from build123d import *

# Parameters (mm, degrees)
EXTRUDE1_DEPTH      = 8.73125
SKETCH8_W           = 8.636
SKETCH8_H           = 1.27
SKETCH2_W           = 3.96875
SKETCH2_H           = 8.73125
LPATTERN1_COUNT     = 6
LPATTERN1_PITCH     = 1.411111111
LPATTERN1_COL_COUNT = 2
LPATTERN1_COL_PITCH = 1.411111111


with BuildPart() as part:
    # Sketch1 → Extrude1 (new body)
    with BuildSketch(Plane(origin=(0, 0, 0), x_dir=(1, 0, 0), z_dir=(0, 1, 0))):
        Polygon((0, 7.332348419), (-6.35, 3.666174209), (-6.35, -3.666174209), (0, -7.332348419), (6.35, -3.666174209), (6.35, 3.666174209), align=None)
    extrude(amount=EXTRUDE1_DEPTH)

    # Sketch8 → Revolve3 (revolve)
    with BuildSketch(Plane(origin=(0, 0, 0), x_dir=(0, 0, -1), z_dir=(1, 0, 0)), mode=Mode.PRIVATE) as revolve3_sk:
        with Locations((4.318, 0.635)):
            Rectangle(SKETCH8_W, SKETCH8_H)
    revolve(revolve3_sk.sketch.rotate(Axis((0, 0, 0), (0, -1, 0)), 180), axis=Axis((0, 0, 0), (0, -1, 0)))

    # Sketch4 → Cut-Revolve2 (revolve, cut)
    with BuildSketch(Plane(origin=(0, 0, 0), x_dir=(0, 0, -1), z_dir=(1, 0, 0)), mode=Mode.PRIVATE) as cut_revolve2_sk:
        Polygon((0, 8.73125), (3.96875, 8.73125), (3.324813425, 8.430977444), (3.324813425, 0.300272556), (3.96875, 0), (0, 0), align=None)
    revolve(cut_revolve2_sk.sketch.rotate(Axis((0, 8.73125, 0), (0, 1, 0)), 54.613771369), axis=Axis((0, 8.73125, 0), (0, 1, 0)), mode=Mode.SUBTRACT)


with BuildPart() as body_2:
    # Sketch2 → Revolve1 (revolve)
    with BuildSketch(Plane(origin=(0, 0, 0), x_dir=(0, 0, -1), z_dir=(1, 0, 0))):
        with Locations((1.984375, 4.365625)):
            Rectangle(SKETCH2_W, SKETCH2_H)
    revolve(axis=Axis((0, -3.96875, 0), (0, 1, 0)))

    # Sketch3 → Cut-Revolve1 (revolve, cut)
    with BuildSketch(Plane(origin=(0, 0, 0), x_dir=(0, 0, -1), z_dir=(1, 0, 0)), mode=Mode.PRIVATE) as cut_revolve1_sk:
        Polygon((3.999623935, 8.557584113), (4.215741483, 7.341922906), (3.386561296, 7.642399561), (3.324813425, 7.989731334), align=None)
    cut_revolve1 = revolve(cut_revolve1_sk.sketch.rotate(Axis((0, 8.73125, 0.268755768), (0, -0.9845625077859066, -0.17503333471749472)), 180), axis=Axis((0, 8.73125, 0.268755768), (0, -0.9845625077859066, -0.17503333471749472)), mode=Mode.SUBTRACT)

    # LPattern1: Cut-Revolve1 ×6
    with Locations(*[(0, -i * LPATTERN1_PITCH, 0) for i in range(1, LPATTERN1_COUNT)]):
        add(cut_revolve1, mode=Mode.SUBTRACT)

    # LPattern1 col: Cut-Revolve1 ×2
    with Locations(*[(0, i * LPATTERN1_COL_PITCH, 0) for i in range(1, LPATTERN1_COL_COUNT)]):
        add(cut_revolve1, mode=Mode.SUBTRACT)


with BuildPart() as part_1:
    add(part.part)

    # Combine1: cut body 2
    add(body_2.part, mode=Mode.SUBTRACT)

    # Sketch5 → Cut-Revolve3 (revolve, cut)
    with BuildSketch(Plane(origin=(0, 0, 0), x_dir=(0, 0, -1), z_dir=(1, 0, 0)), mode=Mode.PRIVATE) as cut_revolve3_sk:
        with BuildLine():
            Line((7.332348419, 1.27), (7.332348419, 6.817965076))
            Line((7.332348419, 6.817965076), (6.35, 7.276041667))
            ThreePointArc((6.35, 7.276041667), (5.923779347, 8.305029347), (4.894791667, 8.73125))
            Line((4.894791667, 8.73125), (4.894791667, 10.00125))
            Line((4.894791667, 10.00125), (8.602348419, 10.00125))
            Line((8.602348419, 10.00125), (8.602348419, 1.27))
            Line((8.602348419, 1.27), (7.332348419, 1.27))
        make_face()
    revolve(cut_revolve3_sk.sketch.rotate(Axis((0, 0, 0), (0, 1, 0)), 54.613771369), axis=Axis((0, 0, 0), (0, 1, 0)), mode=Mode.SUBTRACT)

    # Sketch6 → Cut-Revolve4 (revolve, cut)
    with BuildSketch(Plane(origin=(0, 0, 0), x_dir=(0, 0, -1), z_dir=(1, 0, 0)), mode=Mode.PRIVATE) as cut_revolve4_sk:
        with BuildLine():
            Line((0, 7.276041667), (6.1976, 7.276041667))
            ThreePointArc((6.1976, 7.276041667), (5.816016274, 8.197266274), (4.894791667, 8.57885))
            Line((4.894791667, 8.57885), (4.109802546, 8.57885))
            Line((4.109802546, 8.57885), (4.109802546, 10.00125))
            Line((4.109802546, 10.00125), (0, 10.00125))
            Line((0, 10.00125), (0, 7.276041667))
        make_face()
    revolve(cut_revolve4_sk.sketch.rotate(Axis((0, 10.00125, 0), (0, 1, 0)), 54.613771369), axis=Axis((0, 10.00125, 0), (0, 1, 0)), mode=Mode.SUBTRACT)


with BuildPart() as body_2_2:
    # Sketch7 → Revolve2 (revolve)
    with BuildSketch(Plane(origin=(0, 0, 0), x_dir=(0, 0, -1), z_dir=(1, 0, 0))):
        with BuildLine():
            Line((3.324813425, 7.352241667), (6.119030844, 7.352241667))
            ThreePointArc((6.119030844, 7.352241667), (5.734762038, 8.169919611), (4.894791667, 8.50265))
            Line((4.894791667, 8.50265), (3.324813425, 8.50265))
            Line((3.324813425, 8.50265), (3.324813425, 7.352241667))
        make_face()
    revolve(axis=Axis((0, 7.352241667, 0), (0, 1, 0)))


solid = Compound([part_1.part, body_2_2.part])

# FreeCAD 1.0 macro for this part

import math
import FreeCAD as App
import Part
import Sketcher
from FreeCAD import Vector
Q = App.Units.Quantity


def add_polygon(sketch, points):
    """Adds a closed chain of lines whose ends are joined by coincident constraints."""
    first, n = sketch.GeometryCount, len(points)
    for a, b in zip(points, points[1:] + points[:1]):
        sketch.addGeometry(Part.LineSegment(App.Vector(*a, 0), App.Vector(*b, 0)), False)
    for i in range(n):
        sketch.addConstraint(Sketcher.Constraint("Coincident", first + i, 2, first + (i + 1) % n, 1))

doc = App.newDocument("Part")
params = doc.addObject("Spreadsheet::Sheet", "Params")
for row, (alias, value) in enumerate([
    ("pad1_length", "0.34375 in"),
    ("sketch2_width", "0.05 in"),
    ("sketch2_height", "0.34 in"),
    ("revolution_angle", "360 deg"),
    ("sketch3_width", "0.34375 in"),
    ("sketch3_height", "0.15625 in"),
    ("groove_angle", "360 deg"),
    ("sketch4_width", "0.34375 in"),
    ("sketch4_height", "0.15625 in"),
    ("revolution2_angle", "360 deg"),
    ("groove2_angle", "360 deg"),
    ("linearpattern_pitch", "1.411111 mm"),
    ("linearpattern2_pitch", "1.411111 mm"),
    ("sketch6_width", "0.05 in"),
    ("sketch6_width2", "0.34375 in"),
    ("groove3_angle", "360 deg"),
    ("sketch7_width", "0.056 in"),
    ("sketch7_height", "0.244 in"),
    ("groove4_angle", "360 deg"),
    ("revolution3_angle", "360 deg"),
], start=1):
    params.set(f"A{row}", alias)
    params.set(f"B{row}", "=" + value)
    params.setAlias(f"B{row}", alias)

body = doc.addObject("PartDesign::Body", "Body")

sketch1 = body.newObject("Sketcher::SketchObject", "Sketch")
sketch1.AttachmentSupport = (doc.getObject("XZ_Plane"), [""])
sketch1.MapMode = "FlatFace"
add_polygon(sketch1, [(0, -7), (-6, -4), (-6, 4), (0, 7), (6, 4), (6, -4)])
sketch1.addConstraint(Sketcher.Constraint("Vertical", 1))
sketch1.addConstraint(Sketcher.Constraint("Vertical", 4))
sketch1.addConstraint(Sketcher.Constraint("Symmetric", 0, 2, 3, 2, -1, 1))
sketch1.addConstraint(Sketcher.Constraint("Symmetric", 2, 2, 5, 2, -1, 1))
sketch1.addConstraint(Sketcher.Constraint("PointOnObject", 2, 2, -2))
sketch1.addConstraint(Sketcher.Constraint("Parallel", 2, 5))
sketch1.addConstraint(Sketcher.Constraint("Horizontal", 1, 2, 3, 2))
sketch1.addConstraint(Sketcher.Constraint("Angle", 0, Q("150 deg")))
sketch1.addConstraint(Sketcher.Constraint("DistanceX", 1, 2, 3, 2, Q("0.5 in")))
sketch1.addConstraint(Sketcher.Constraint("DistanceY", 1, 1, 1, 2, Q("7.332348 mm")))
pad1 = body.newObject("PartDesign::Pad", "Pad")
pad1.Profile = sketch1
pad1.setExpression("Length", "Params.pad1_length")
pad1.Reversed = True

sketch2 = body.newObject("Sketcher::SketchObject", "Sketch001")
sketch2.AttachmentSupport = (doc.getObject("YZ_Plane"), [""])
sketch2.MapMode = "FlatFace"
add_polygon(sketch2, [(1.3, 0), (0, 0), (0, -8.6), (1.3, -8.6)])
sketch2.addConstraint(Sketcher.Constraint("Horizontal", 0))
sketch2.addConstraint(Sketcher.Constraint("Vertical", 1))
sketch2.addConstraint(Sketcher.Constraint("Horizontal", 2))
sketch2.addConstraint(Sketcher.Constraint("Vertical", 3))
sketch2.addConstraint(Sketcher.Constraint("Coincident", 0, 2, -1, 1))
sketch2.addConstraint(Sketcher.Constraint("DistanceX", 0, 2, 0, 1, Q("0.05 in")))
sketch2.addConstraint(Sketcher.Constraint("DistanceY", 1, 2, 1, 1, Q("0.34 in")))
sketch2.setExpression("Constraints[9]", "Params.sketch2_width")
sketch2.setExpression("Constraints[10]", "Params.sketch2_height")
revolution = body.newObject("PartDesign::Revolution", "Revolution")
revolution.Profile = sketch2
revolution.ReferenceAxis = (sketch2, ["H_Axis"])
revolution.setExpression("Angle", "Params.revolution_angle")

sketch3 = body.newObject("Sketcher::SketchObject", "Sketch002")
sketch3.AttachmentSupport = (doc.getObject("YZ_Plane"), [""])
sketch3.MapMode = "FlatFace"
add_polygon(sketch3, [(8.7, -4), (8.7, 0), (0, 0), (0, -4), (0.3, -3.3), (8.4, -3.3)])
sketch3.addConstraint(Sketcher.Constraint("Vertical", 0))
sketch3.addConstraint(Sketcher.Constraint("Horizontal", 1))
sketch3.addConstraint(Sketcher.Constraint("Vertical", 2))
sketch3.addConstraint(Sketcher.Constraint("Horizontal", 4))
sketch3.addConstraint(Sketcher.Constraint("Coincident", 1, 2, -1, 1))
sketch3.addConstraint(Sketcher.Constraint("Horizontal", 2, 2, 5, 2))
sketch3.addConstraint(Sketcher.Constraint("Equal", 3, 5))
sketch3.addConstraint(Sketcher.Constraint("Angle", 3, Q("65 deg")))
sketch3.addConstraint(Sketcher.Constraint("DistanceX", 1, 2, 1, 1, Q("0.34375 in")))
sketch3.addConstraint(Sketcher.Constraint("DistanceY", 0, 1, 0, 2, Q("0.15625 in")))
sketch3.addConstraint(Sketcher.Constraint("DistanceX", 4, 1, 4, 2, Q("8.130705 mm")))
sketch3.setExpression("Constraints[14]", "Params.sketch3_width")
sketch3.setExpression("Constraints[15]", "Params.sketch3_height")
groove = body.newObject("PartDesign::Groove", "Groove")
groove.Profile = sketch3
groove.ReferenceAxis = (sketch3, ["H_Axis"])
groove.setExpression("Angle", "Params.groove_angle")
body2 = doc.addObject("PartDesign::Body", "Body001")

sketch4 = body2.newObject("Sketcher::SketchObject", "Sketch003")
sketch4.AttachmentSupport = (doc.getObject("YZ_Plane001"), [""])
sketch4.MapMode = "FlatFace"
add_polygon(sketch4, [(8.7, 0), (0, 0), (0, -4), (8.7, -4)])
sketch4.addConstraint(Sketcher.Constraint("Horizontal", 0))
sketch4.addConstraint(Sketcher.Constraint("Vertical", 1))
sketch4.addConstraint(Sketcher.Constraint("Horizontal", 2))
sketch4.addConstraint(Sketcher.Constraint("Vertical", 3))
sketch4.addConstraint(Sketcher.Constraint("Coincident", 0, 2, -1, 1))
sketch4.addConstraint(Sketcher.Constraint("DistanceX", 0, 2, 0, 1, Q("0.34375 in")))
sketch4.addConstraint(Sketcher.Constraint("DistanceY", 1, 2, 1, 1, Q("0.15625 in")))
sketch4.setExpression("Constraints[9]", "Params.sketch4_width")
sketch4.setExpression("Constraints[10]", "Params.sketch4_height")
revolution2 = body2.newObject("PartDesign::Revolution", "Revolution001")
revolution2.Profile = sketch4
revolution2.ReferenceAxis = (sketch4, ["H_Axis"])
revolution2.setExpression("Angle", "Params.revolution2_angle")

sketch5 = body2.newObject("Sketcher::SketchObject", "Sketch004")
sketch5.AttachmentSupport = (doc.getObject("YZ_Plane001"), [""])
sketch5.MapMode = "FlatFace"
add_polygon(sketch5, [(7.34, -4.22), (8.56, -4), (7.99, -3.32), (7.64, -3.39)])
sketch5.addGeometry(Part.LineSegment(Vector(7.83, 0.11, 0), Vector(6.61, -0.11, 0)), True)
sketch5.addConstraint(Sketcher.Constraint("Parallel", 0, 2))
sketch5.addConstraint(Sketcher.Constraint("Parallel", 2, 4))
sketch5.addConstraint(Sketcher.Constraint("Equal", 1, 3))
sketch5.addConstraint(Sketcher.Constraint("Equal", 0, 4))
sketch5.addConstraint(Sketcher.Constraint("DistanceX", -1, 1, 2, 2, Q("7.6424 mm")))
sketch5.addConstraint(Sketcher.Constraint("DistanceX", 4, 1, 1, 2, Q("0.162402 mm")))
sketch5.addConstraint(Sketcher.Constraint("DistanceY", 3, 2, 4, 1, Q("4.3238 mm")))
sketch5.addConstraint(Sketcher.Constraint("DistanceX", -1, 1, 1, 2, Q("7.989731 mm")))
sketch5.addConstraint(Sketcher.Constraint("DistanceY", 2, 2, -1, 1, Q("3.386561 mm")))
sketch5.addConstraint(Sketcher.Constraint("DistanceY", 3, 2, -1, 1, Q("4.215741 mm")))
sketch5.addConstraint(Sketcher.Constraint("DistanceX", -1, 1, 4, 2, Q("6.611668 mm")))
sketch5.addConstraint(Sketcher.Constraint("DistanceY", 4, 2, -1, 1, Q("0.108059 mm")))
groove2 = body2.newObject("PartDesign::Groove", "Groove001")
groove2.Profile = sketch5
groove2.ReferenceAxis = (sketch5, ["Axis0"])
groove2.setExpression("Angle", "Params.groove2_angle")
doc.recompute()

linearpattern = body2.newObject("PartDesign::LinearPattern", "LinearPattern")
linearpattern.Originals = [groove2]
linearpattern.Direction = (doc.getObject("Y_Axis001"), [""])
linearpattern.Mode = "offset"
linearpattern.setExpression("Offset", "Params.linearpattern_pitch")
linearpattern.Occurrences = 6
linearpattern.Reversed = True
body2.Tip = linearpattern
doc.recompute()

linearpattern2 = body2.newObject("PartDesign::LinearPattern", "LinearPattern001")
linearpattern2.Originals = [groove2]
linearpattern2.Direction = (doc.getObject("Y_Axis001"), [""])
linearpattern2.Mode = "offset"
linearpattern2.setExpression("Offset", "Params.linearpattern2_pitch")
linearpattern2.Occurrences = 2
body2.Tip = linearpattern2
doc.recompute()

boolean = body.newObject("PartDesign::Boolean", "Boolean")
boolean.Type = "Cut"
boolean.addObjects([body2])

sketch6 = body.newObject("Sketcher::SketchObject", "Sketch005")
sketch6.AttachmentSupport = (doc.getObject("YZ_Plane"), [""])
sketch6.MapMode = "FlatFace"
sketch6.addGeometry(Part.LineSegment(Vector(6.8, -7.3, 0), Vector(1.3, -7.3, 0)), False)
sketch6.addGeometry(Part.LineSegment(Vector(1.3, -7.3, 0), Vector(1.3, -8.6, 0)), False)
sketch6.addGeometry(Part.LineSegment(Vector(1.3, -8.6, 0), Vector(10, -8.6, 0)), False)
sketch6.addGeometry(Part.LineSegment(Vector(10, -8.6, 0), Vector(10, -4.9, 0)), False)
sketch6.addGeometry(Part.LineSegment(Vector(10, -4.9, 0), Vector(8.7, -4.9, 0)), False)
sketch6.addGeometry(Part.ArcOfCircle(Part.Circle(Vector(7.3, -4.9, 0), Vector(0, 0, 1), 1.5), math.radians(-90), math.radians(0)), False)
sketch6.addGeometry(Part.LineSegment(Vector(7.3, -6.3, 0), Vector(6.8, -7.3, 0)), False)
sketch6.addConstraint(Sketcher.Constraint("Coincident", 0, 2, 1, 1))
sketch6.addConstraint(Sketcher.Constraint("Coincident", 1, 2, 2, 1))
sketch6.addConstraint(Sketcher.Constraint("Coincident", 2, 2, 3, 1))
sketch6.addConstraint(Sketcher.Constraint("Coincident", 3, 2, 4, 1))
sketch6.addConstraint(Sketcher.Constraint("Coincident", 4, 2, 5, 2))
sketch6.addConstraint(Sketcher.Constraint("Coincident", 5, 1, 6, 1))
sketch6.addConstraint(Sketcher.Constraint("Coincident", 6, 2, 0, 1))
sketch6.addConstraint(Sketcher.Constraint("Horizontal", 0))
sketch6.addConstraint(Sketcher.Constraint("Vertical", 1))
sketch6.addConstraint(Sketcher.Constraint("Horizontal", 2))
sketch6.addConstraint(Sketcher.Constraint("Vertical", 3))
sketch6.addConstraint(Sketcher.Constraint("Horizontal", 4))
sketch6.addConstraint(Sketcher.Constraint("Horizontal", 5, 3, 3, 2))
sketch6.addConstraint(Sketcher.Constraint("Equal", 4, 1))
sketch6.addConstraint(Sketcher.Constraint("Angle", 6, Q("-115 deg")))
sketch6.addConstraint(Sketcher.Constraint("DistanceX", 4, 2, 4, 1, Q("0.05 in")))
sketch6.addConstraint(Sketcher.Constraint("DistanceX", 2, 1, 2, 2, Q("0.34375 in")))
sketch6.addConstraint(Sketcher.Constraint("DistanceX", -1, 1, 0, 2, Q("0.05 in")))
sketch6.addConstraint(Sketcher.Constraint("DistanceY", 5, 1, -1, 1, Q("0.25 in")))
sketch6.addConstraint(Sketcher.Constraint("Radius", 5, Q("1.455208 mm")))
sketch6.addConstraint(Sketcher.Constraint("Distance", 6, Q("1.083902 mm")))
sketch6.addConstraint(Sketcher.Constraint("DistanceX", 0, 2, 0, 1, Q("5.547965 mm")))
sketch6.setExpression("Constraints[15]", "Params.sketch6_width")
sketch6.setExpression("Constraints[16]", "Params.sketch6_width2")
groove3 = body.newObject("PartDesign::Groove", "Groove002")
groove3.Profile = sketch6
groove3.ReferenceAxis = (sketch6, ["H_Axis"])
groove3.setExpression("Angle", "Params.groove3_angle")

sketch7 = body.newObject("Sketcher::SketchObject", "Sketch006")
sketch7.AttachmentSupport = (doc.getObject("YZ_Plane"), [""])
sketch7.MapMode = "FlatFace"
sketch7.addGeometry(Part.LineSegment(Vector(7.3, 0, 0), Vector(7.3, -6.2, 0)), False)
sketch7.addGeometry(Part.ArcOfCircle(Part.Circle(Vector(7.3, -4.9, 0), Vector(0, 0, 1), 1.3), math.radians(-90), math.radians(0)), False)
sketch7.addGeometry(Part.LineSegment(Vector(8.6, -4.9, 0), Vector(8.6, -4.1, 0)), False)
sketch7.addGeometry(Part.LineSegment(Vector(8.6, -4.1, 0), Vector(10, -4.1, 0)), False)
sketch7.addGeometry(Part.LineSegment(Vector(10, -4.1, 0), Vector(10, 0, 0)), False)
sketch7.addGeometry(Part.LineSegment(Vector(10, 0, 0), Vector(7.3, 0, 0)), False)
sketch7.addConstraint(Sketcher.Constraint("Coincident", 0, 2, 1, 1))
sketch7.addConstraint(Sketcher.Constraint("Tangent", 1, 2, 2, 1))
sketch7.addConstraint(Sketcher.Constraint("Coincident", 2, 2, 3, 1))
sketch7.addConstraint(Sketcher.Constraint("Coincident", 3, 2, 4, 1))
sketch7.addConstraint(Sketcher.Constraint("Coincident", 4, 2, 5, 1))
sketch7.addConstraint(Sketcher.Constraint("Coincident", 5, 2, 0, 1))
sketch7.addConstraint(Sketcher.Constraint("Vertical", 0))
sketch7.addConstraint(Sketcher.Constraint("Vertical", 2))
sketch7.addConstraint(Sketcher.Constraint("Horizontal", 3))
sketch7.addConstraint(Sketcher.Constraint("Vertical", 4))
sketch7.addConstraint(Sketcher.Constraint("Horizontal", 5))
sketch7.addConstraint(Sketcher.Constraint("PointOnObject", 4, 2, -1))
sketch7.addConstraint(Sketcher.Constraint("Vertical", 1, 3, 0, 2))
sketch7.addConstraint(Sketcher.Constraint("DistanceX", 3, 1, 3, 2, Q("0.056 in")))
sketch7.addConstraint(Sketcher.Constraint("DistanceY", 0, 2, 0, 1, Q("0.244 in")))
sketch7.addConstraint(Sketcher.Constraint("Radius", 1, Q("1.302808 mm")))
sketch7.addConstraint(Sketcher.Constraint("DistanceY", 2, 1, 2, 2, Q("0.784989 mm")))
sketch7.addConstraint(Sketcher.Constraint("DistanceX", -1, 1, 1, 3, Q("7.276042 mm")))
sketch7.setExpression("Constraints[13]", "Params.sketch7_width")
sketch7.setExpression("Constraints[14]", "Params.sketch7_height")
groove4 = body.newObject("PartDesign::Groove", "Groove003")
groove4.Profile = sketch7
groove4.ReferenceAxis = (sketch7, ["H_Axis"])
groove4.setExpression("Angle", "Params.groove4_angle")
body3 = doc.addObject("PartDesign::Body", "Body002")

sketch8 = body3.newObject("Sketcher::SketchObject", "Sketch007")
sketch8.AttachmentSupport = (doc.getObject("YZ_Plane002"), [""])
sketch8.MapMode = "FlatFace"
sketch8.addGeometry(Part.LineSegment(Vector(7.4, -3.3, 0), Vector(7.4, -6.1, 0)), False)
sketch8.addGeometry(Part.ArcOfCircle(Part.Circle(Vector(7.3, -4.9, 0), Vector(0, 0, 1), 1.2), math.radians(-86), math.radians(0)), False)
sketch8.addGeometry(Part.LineSegment(Vector(8.5, -4.9, 0), Vector(8.5, -3.3, 0)), False)
sketch8.addGeometry(Part.LineSegment(Vector(8.5, -3.3, 0), Vector(7.4, -3.3, 0)), False)
sketch8.addConstraint(Sketcher.Constraint("Coincident", 0, 2, 1, 1))
sketch8.addConstraint(Sketcher.Constraint("Tangent", 1, 2, 2, 1))
sketch8.addConstraint(Sketcher.Constraint("Coincident", 2, 2, 3, 1))
sketch8.addConstraint(Sketcher.Constraint("Coincident", 3, 2, 0, 1))
sketch8.addConstraint(Sketcher.Constraint("Vertical", 0))
sketch8.addConstraint(Sketcher.Constraint("Vertical", 2))
sketch8.addConstraint(Sketcher.Constraint("Horizontal", 3))
sketch8.addConstraint(Sketcher.Constraint("Radius", 1, Q("1.226608 mm")))
sketch8.addConstraint(Sketcher.Constraint("DistanceX", 1, 3, 0, 2, Q("0.003 in")))
sketch8.addConstraint(Sketcher.Constraint("DistanceY", 2, 1, 2, 2, Q("1.569978 mm")))
sketch8.addConstraint(Sketcher.Constraint("DistanceX", -1, 1, 1, 3, Q("7.276042 mm")))
sketch8.addConstraint(Sketcher.Constraint("DistanceY", 1, 3, -1, 1, Q("4.894792 mm")))
revolution3 = body3.newObject("PartDesign::Revolution", "Revolution002")
revolution3.Profile = sketch8
revolution3.ReferenceAxis = (sketch8, ["H_Axis"])
revolution3.setExpression("Angle", "Params.revolution3_angle")

doc.recompute()
